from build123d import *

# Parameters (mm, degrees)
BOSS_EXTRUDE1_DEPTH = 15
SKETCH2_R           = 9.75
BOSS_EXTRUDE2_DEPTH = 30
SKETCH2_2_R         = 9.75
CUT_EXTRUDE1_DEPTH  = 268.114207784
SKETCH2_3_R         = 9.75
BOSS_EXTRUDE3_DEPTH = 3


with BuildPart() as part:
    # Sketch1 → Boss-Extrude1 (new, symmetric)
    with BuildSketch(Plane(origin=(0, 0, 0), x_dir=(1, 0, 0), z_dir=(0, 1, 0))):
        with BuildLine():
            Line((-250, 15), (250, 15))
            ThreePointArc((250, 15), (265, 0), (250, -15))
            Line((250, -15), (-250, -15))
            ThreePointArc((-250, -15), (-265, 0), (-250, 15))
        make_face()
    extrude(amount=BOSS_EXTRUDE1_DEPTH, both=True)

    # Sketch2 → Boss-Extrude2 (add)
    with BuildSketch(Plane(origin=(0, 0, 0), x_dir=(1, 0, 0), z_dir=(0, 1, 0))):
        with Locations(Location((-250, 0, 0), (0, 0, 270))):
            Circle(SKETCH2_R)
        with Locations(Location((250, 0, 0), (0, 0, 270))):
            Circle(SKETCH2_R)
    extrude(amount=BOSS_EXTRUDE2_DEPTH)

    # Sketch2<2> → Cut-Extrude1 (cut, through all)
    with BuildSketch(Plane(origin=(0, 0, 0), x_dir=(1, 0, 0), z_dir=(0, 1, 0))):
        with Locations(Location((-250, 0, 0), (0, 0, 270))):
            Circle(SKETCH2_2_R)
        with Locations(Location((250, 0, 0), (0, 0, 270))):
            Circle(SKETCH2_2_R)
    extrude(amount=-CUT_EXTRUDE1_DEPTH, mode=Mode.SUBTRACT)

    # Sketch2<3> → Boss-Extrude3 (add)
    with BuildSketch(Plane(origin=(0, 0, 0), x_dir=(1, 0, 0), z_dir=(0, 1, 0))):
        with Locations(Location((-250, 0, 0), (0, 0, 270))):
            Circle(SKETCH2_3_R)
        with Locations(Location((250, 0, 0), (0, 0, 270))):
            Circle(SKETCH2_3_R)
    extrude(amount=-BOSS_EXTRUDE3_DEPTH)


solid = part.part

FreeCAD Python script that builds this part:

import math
import FreeCAD as App
import Part
import Sketcher
Q = App.Units.Quantity

doc = App.newDocument("Part")
body = doc.addObject("PartDesign::Body", "Body")

sketch1 = body.newObject("Sketcher::SketchObject", "Sketch")
sketch1.AttachmentSupport = (doc.getObject("XZ_Plane"), [""])
sketch1.MapMode = "FlatFace"
sketch1.addGeometry(Part.LineSegment(App.Vector(250, -15, 0), App.Vector(-250, -15, 0)), False)
sketch1.addGeometry(Part.ArcOfCircle(Part.Circle(App.Vector(-250, 0, 0), App.Vector(0, 0, 1), 15), math.radians(90), math.radians(270)), False)
sketch1.addGeometry(Part.LineSegment(App.Vector(-250, 15, 0), App.Vector(250, 15, 0)), False)
sketch1.addGeometry(Part.ArcOfCircle(Part.Circle(App.Vector(250, 0, 0), App.Vector(0, 0, 1), 15), math.radians(-90), math.radians(90)), False)
sketch1.addConstraint(Sketcher.Constraint("Tangent", 0, 2, 1, 2))
sketch1.addConstraint(Sketcher.Constraint("Tangent", 1, 1, 2, 1))
sketch1.addConstraint(Sketcher.Constraint("Tangent", 2, 2, 3, 2))
sketch1.addConstraint(Sketcher.Constraint("Tangent", 3, 1, 0, 1))
sketch1.addConstraint(Sketcher.Constraint("Horizontal", 0))
sketch1.addConstraint(Sketcher.Constraint("Horizontal", 2))
sketch1.addConstraint(Sketcher.Constraint("Symmetric", 1, 3, 3, 3, -1, 1))
sketch1.addConstraint(Sketcher.Constraint("Radius", 1, Q("15 mm")))
sketch1.addConstraint(Sketcher.Constraint("DistanceX", 0, 2, 0, 1, Q("500 mm")))
pad1 = body.newObject("PartDesign::Pad", "Pad")
pad1.Profile = sketch1
pad1.Length = 30
pad1.Midplane = True

sketch2 = body.newObject("Sketcher::SketchObject", "Sketch001")
sketch2.AttachmentSupport = (doc.getObject("XZ_Plane"), [""])
sketch2.MapMode = "FlatFace"
sketch2.addGeometry(Part.Circle(App.Vector(-250, 0, 0), App.Vector(0, 0, 1), 10), False)
sketch2.addGeometry(Part.Circle(App.Vector(250, 0, 0), App.Vector(0, 0, 1), 10), False)
sketch2.addConstraint(Sketcher.Constraint("Equal", 0, 1))
sketch2.addConstraint(Sketcher.Constraint("Symmetric", 0, 3, 1, 3, -1, 1))
sketch2.addConstraint(Sketcher.Constraint("PointOnObject", 0, 3, -1))
sketch2.addConstraint(Sketcher.Constraint("Diameter", 0, Q("19.5 mm")))
sketch2.addConstraint(Sketcher.Constraint("DistanceX", 0, 3, -1, 1, Q("250 mm")))
pad2 = body.newObject("PartDesign::Pad", "Pad001")
pad2.Profile = sketch2
pad2.Length = 30
pad2.Reversed = True

sketch3 = body.newObject("Sketcher::SketchObject", "Sketch002")
sketch3.AttachmentSupport = (doc.getObject("XZ_Plane"), [""])
sketch3.MapMode = "FlatFace"
sketch3.addGeometry(Part.Circle(App.Vector(-250, 0, 0), App.Vector(0, 0, 1), 10), False)
sketch3.addGeometry(Part.Circle(App.Vector(250, 0, 0), App.Vector(0, 0, 1), 10), False)
sketch3.addConstraint(Sketcher.Constraint("Equal", 0, 1))
sketch3.addConstraint(Sketcher.Constraint("Symmetric", 0, 3, 1, 3, -1, 1))
sketch3.addConstraint(Sketcher.Constraint("PointOnObject", 0, 3, -1))
sketch3.addConstraint(Sketcher.Constraint("Diameter", 0, Q("19.5 mm")))
sketch3.addConstraint(Sketcher.Constraint("DistanceX", 0, 3, -1, 1, Q("250 mm")))
pocket1 = body.newObject("PartDesign::Pocket", "Pocket")
pocket1.Profile = sketch3
pocket1.Type = "ThroughAll"
pocket1.Reversed = True

sketch4 = body.newObject("Sketcher::SketchObject", "Sketch003")
sketch4.AttachmentSupport = (doc.getObject("XZ_Plane"), [""])
sketch4.MapMode = "FlatFace"
sketch4.addGeometry(Part.Circle(App.Vector(-250, 0, 0), App.Vector(0, 0, 1), 10), False)
sketch4.addGeometry(Part.Circle(App.Vector(250, 0, 0), App.Vector(0, 0, 1), 10), False)
sketch4.addConstraint(Sketcher.Constraint("Equal", 0, 1))
sketch4.addConstraint(Sketcher.Constraint("Symmetric", 0, 3, 1, 3, -1, 1))
sketch4.addConstraint(Sketcher.Constraint("PointOnObject", 0, 3, -1))
sketch4.addConstraint(Sketcher.Constraint("Diameter", 0, Q("19.5 mm")))
sketch4.addConstraint(Sketcher.Constraint("DistanceX", 0, 3, -1, 1, Q("250 mm")))
pad3 = body.newObject("PartDesign::Pad", "Pad002")
pad3.Profile = sketch4
pad3.Length = 3

doc.recompute()
